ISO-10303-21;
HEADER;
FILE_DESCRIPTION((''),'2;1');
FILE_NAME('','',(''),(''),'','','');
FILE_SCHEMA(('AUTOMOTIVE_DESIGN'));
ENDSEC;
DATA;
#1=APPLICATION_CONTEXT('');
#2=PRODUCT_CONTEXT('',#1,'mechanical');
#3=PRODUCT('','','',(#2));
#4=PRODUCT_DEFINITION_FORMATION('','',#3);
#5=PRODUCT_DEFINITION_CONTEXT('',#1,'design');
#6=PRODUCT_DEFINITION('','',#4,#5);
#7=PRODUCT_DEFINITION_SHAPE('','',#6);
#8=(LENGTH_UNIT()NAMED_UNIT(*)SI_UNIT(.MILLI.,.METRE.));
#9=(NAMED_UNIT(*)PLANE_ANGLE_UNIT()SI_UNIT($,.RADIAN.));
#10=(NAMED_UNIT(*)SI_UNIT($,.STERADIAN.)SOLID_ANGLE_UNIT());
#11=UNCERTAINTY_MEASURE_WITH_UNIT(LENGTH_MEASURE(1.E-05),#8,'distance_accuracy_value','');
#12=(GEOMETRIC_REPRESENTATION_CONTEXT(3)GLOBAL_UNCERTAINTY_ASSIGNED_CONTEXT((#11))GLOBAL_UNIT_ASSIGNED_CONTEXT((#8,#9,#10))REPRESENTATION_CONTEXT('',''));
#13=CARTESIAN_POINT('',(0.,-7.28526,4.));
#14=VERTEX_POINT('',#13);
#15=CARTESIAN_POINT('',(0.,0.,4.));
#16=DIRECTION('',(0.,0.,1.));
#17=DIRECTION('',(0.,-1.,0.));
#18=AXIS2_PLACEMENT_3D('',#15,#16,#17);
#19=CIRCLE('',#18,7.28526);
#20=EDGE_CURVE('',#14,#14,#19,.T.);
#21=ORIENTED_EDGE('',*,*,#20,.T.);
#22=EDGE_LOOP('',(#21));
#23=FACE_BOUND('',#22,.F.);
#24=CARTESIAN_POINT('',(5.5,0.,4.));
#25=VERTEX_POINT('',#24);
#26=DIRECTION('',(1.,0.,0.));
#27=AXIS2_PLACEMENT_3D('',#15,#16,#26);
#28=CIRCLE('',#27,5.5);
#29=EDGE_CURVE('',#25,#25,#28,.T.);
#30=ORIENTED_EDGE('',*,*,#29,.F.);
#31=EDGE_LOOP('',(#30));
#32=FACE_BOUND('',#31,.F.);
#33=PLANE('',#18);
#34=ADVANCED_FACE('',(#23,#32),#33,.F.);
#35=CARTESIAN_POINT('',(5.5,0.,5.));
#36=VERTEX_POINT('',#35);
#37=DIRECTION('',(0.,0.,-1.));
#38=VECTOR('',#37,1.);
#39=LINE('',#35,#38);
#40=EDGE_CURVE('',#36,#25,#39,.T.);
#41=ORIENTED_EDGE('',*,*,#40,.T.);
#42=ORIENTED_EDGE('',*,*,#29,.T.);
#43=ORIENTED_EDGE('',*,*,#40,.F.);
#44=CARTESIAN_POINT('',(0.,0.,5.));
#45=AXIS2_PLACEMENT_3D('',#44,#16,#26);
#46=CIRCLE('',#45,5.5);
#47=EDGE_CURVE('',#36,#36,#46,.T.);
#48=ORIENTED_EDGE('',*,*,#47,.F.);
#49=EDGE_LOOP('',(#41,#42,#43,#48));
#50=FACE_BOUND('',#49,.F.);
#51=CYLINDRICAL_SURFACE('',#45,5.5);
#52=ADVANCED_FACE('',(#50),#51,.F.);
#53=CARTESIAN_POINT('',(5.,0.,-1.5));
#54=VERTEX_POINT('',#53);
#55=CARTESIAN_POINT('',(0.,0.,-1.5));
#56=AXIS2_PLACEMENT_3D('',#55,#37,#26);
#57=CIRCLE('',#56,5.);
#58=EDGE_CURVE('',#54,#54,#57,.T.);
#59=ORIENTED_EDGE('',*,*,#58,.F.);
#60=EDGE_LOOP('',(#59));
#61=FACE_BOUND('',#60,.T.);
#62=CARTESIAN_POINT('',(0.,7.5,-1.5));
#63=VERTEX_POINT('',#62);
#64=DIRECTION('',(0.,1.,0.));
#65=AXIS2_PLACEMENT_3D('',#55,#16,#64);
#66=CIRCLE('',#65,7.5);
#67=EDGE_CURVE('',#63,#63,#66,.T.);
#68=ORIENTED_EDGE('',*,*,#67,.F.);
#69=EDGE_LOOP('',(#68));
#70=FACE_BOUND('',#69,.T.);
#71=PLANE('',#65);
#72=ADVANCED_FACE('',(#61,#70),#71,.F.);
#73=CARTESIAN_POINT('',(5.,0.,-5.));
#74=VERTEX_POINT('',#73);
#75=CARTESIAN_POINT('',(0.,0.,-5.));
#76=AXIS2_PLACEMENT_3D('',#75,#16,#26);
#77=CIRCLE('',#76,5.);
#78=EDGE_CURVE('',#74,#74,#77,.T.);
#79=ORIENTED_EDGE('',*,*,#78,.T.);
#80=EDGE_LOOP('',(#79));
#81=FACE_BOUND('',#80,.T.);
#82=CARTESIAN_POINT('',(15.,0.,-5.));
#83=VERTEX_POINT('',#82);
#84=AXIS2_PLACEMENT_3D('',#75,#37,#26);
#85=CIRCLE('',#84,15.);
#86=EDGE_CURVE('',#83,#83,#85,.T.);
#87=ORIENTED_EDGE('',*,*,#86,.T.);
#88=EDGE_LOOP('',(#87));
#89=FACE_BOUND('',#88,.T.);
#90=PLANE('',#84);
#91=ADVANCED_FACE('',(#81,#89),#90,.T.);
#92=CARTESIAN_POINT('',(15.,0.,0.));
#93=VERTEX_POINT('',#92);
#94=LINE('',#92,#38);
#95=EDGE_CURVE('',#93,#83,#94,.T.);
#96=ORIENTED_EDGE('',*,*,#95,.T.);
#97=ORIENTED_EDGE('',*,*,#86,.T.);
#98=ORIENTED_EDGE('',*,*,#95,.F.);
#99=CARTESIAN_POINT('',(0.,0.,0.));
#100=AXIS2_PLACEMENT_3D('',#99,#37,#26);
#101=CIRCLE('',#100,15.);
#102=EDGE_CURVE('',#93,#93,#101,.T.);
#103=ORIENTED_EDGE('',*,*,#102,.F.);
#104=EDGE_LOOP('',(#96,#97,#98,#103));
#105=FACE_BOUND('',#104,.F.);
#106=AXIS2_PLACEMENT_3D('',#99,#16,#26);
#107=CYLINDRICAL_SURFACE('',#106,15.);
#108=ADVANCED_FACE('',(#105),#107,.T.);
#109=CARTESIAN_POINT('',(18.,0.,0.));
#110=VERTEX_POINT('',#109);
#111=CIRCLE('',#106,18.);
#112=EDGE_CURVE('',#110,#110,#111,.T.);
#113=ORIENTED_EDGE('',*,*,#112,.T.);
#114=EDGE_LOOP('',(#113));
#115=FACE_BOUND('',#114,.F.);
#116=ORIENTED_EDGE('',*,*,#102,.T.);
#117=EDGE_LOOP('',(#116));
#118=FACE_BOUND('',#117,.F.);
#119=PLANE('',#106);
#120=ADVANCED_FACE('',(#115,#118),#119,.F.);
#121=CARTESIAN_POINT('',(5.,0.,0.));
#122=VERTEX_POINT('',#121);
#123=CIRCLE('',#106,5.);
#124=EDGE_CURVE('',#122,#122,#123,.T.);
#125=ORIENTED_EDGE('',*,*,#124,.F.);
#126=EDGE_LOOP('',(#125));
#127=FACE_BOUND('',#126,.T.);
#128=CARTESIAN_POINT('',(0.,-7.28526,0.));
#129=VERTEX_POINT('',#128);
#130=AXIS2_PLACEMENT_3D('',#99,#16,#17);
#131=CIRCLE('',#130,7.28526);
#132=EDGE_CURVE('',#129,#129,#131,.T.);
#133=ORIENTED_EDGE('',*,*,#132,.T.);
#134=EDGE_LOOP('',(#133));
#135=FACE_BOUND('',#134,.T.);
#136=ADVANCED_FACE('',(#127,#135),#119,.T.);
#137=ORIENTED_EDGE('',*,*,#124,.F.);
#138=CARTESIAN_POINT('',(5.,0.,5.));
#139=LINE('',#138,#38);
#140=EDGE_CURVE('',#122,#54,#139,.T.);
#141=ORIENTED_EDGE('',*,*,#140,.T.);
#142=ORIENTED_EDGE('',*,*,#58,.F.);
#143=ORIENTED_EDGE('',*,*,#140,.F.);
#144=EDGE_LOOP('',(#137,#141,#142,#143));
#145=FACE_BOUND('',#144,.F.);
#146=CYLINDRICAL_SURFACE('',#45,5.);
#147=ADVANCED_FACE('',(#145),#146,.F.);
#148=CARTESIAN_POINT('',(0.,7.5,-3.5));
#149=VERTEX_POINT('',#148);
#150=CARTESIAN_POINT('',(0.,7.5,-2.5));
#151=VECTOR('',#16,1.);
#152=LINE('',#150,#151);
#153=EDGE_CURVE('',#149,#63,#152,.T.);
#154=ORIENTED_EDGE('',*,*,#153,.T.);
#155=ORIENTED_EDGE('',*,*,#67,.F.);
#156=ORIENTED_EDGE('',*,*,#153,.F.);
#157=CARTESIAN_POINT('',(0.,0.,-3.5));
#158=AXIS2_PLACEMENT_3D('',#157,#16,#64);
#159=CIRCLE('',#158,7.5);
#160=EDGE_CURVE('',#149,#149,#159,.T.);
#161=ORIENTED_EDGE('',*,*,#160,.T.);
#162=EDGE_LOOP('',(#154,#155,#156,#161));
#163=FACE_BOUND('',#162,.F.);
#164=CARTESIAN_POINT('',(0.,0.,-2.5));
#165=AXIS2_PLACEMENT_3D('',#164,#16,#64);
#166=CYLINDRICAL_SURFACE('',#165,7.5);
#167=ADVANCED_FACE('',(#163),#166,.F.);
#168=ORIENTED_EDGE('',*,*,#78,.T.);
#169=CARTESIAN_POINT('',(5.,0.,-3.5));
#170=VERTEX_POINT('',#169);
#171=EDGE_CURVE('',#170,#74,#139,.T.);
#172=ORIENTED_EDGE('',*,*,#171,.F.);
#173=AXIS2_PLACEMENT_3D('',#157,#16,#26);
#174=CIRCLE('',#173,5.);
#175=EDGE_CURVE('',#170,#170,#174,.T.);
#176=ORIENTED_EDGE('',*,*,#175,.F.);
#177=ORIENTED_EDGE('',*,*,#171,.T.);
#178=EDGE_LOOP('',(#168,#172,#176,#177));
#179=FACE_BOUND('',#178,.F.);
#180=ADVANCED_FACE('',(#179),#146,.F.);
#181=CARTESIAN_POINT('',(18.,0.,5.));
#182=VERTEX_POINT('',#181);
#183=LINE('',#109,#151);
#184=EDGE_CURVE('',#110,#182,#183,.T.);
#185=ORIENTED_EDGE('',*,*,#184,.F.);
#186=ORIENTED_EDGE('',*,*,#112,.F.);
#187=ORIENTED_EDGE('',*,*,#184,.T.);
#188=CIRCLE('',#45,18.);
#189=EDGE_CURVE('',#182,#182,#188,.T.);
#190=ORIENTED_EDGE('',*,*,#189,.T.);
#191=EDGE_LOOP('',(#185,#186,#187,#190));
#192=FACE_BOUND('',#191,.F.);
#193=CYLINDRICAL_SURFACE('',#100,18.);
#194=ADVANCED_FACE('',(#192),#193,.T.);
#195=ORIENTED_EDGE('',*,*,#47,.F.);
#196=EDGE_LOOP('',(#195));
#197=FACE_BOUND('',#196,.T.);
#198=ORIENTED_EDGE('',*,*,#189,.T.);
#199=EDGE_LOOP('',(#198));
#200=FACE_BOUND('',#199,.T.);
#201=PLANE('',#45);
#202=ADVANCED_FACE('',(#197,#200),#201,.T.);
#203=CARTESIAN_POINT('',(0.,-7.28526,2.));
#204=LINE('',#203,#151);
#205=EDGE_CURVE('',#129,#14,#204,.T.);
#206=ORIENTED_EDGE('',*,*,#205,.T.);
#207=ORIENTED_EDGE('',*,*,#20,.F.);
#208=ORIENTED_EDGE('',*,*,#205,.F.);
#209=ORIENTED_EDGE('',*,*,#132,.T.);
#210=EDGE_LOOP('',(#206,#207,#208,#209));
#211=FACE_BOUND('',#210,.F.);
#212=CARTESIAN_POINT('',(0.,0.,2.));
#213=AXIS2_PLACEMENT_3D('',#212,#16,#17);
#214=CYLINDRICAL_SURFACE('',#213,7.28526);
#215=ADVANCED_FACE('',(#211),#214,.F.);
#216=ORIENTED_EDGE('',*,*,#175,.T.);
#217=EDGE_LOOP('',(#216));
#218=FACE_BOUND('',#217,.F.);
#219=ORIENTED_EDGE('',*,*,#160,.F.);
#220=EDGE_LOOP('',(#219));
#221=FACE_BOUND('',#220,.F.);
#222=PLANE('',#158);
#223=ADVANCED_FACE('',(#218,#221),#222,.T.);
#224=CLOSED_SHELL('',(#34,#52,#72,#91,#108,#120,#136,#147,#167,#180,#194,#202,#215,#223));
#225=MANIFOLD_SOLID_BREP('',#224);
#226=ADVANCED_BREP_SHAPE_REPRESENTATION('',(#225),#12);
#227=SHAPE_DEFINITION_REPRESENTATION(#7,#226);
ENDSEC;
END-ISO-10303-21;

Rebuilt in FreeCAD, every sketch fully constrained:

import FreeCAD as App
import Part
import Sketcher

V = App.Vector


def add_polygon(sketch, points):
    """Adds a closed chain of lines whose ends are joined by coincident constraints."""
    first, n = sketch.GeometryCount, len(points)
    for a, b in zip(points, points[1:] + points[:1]):
        sketch.addGeometry(Part.LineSegment(App.Vector(*a, 0), App.Vector(*b, 0)), False)
    for i in range(n):
        sketch.addConstraint(Sketcher.Constraint("Coincident", first + i, 2, first + (i + 1) % n, 1))

doc = App.newDocument("Part")
body = doc.addObject("PartDesign::Body", "Body")

sketch1 = body.newObject("Sketcher::SketchObject", "Sketch")
sketch1.AttachmentSupport = (doc.getObject("XY_Plane"), [""])
sketch1.MapMode = "FlatFace"
sketch1.addGeometry(Part.Circle(V(0, 0, 0), V(0, 0, 1), 18), False)
sketch1.addConstraint([
    Sketcher.Constraint("Coincident", 0, 3, -1, 1),
    Sketcher.Constraint("Diameter", 0, 36.0),
])
pad1 = body.newObject("PartDesign::Pad", "Pad")
pad1.Profile = sketch1
pad1.Length = 5

sketch2 = body.newObject("Sketcher::SketchObject", "Sketch001")
sketch2.AttachmentSupport = (doc.getObject("XY_Plane"), [""])
sketch2.MapMode = "FlatFace"
sketch2.addGeometry(Part.Circle(V(0, 0, 0), V(0, 0, 1), 15), False)
sketch2.addConstraint([
    Sketcher.Constraint("Coincident", 0, 3, -1, 1),
    Sketcher.Constraint("Diameter", 0, 30.0),
])
pad2 = body.newObject("PartDesign::Pad", "Pad001")
pad2.Profile = sketch2
pad2.Length = 5
pad2.Reversed = True

sketch3 = body.newObject("Sketcher::SketchObject", "Sketch002")
sketch3.AttachmentSupport = (doc.getObject("XY_Plane"), [""])
sketch3.MapMode = "FlatFace"
sketch3.AttachmentOffset = App.Placement(V(0, 0, 5), App.Rotation())
sketch3.addGeometry(Part.Circle(V(0, 0, 0), V(0, 0, 1), 5), False)
sketch3.addConstraint([
    Sketcher.Constraint("Coincident", 0, 3, -1, 1),
    Sketcher.Constraint("Diameter", 0, 10.0),
])
pocket1 = body.newObject("PartDesign::Pocket", "Pocket")
pocket1.Profile = sketch3
pocket1.Length = 10

sketch4 = body.newObject("Sketcher::SketchObject", "Sketch003")
sketch4.AttachmentSupport = (doc.getObject("XY_Plane"), [""])
sketch4.MapMode = "FlatFace"
sketch4.AttachmentOffset = App.Placement(V(0, 0, 5), App.Rotation())
sketch4.addGeometry(Part.Circle(V(0, 0, 0), V(0, 0, 1), 6), False)
sketch4.addConstraint([
    Sketcher.Constraint("Coincident", 0, 3, -1, 1),
    Sketcher.Constraint("Diameter", 0, 11.0),
])
pocket2 = body.newObject("PartDesign::Pocket", "Pocket001")
pocket2.Profile = sketch4
pocket2.Length = 5

sketch5 = body.newObject("Sketcher::SketchObject", "Sketch004")
sketch5.AttachmentSupport = (doc.getObject("YZ_Plane"), [""])
sketch5.MapMode = "FlatFace"
add_polygon(sketch5, [(-7.3, 4), (-7.3, 0), (-5.5, 0), (-5.5, 4)])
sketch5.addConstraint([
    Sketcher.Constraint("Vertical", 0),
    Sketcher.Constraint("Horizontal", 1),
    Sketcher.Constraint("Vertical", 2),
    Sketcher.Constraint("Horizontal", 3),
    Sketcher.Constraint("PointOnObject", 0, 2, -1),
    Sketcher.Constraint("DistanceY", 0, 2, 0, 1, 4.0),
    Sketcher.Constraint("DistanceX", 1, 2, -1, 1, 5.5),
    Sketcher.Constraint("DistanceX", 1, 1, 1, 2, 1.785261),
])
groove = body.newObject("PartDesign::Groove", "Groove")
groove.Profile = sketch5
groove.ReferenceAxis = (sketch5, ["V_Axis"])
groove.Angle = 360

sketch6 = body.newObject("Sketcher::SketchObject", "Sketch005")
sketch6.AttachmentSupport = (doc.getObject("YZ_Plane"), [""])
sketch6.MapMode = "FlatFace"
add_polygon(sketch6, [(5, -1.5), (5, -3.5), (7.5, -3.5), (7.5, -1.5)])
sketch6.addConstraint([
    Sketcher.Constraint("Vertical", 0),
    Sketcher.Constraint("Horizontal", 1),
    Sketcher.Constraint("Vertical", 2),
    Sketcher.Constraint("Horizontal", 3),
    Sketcher.Constraint("DistanceY", 0, 2, 0, 1, 2.0),
    Sketcher.Constraint("DistanceX", 1, 1, 1, 2, 2.5),
    Sketcher.Constraint("DistanceX", -1, 1, 0, 2, 5.0),
    Sketcher.Constraint("DistanceY", 0, 2, -1, 1, 3.5),
])
groove2 = body.newObject("PartDesign::Groove", "Groove001")
groove2.Profile = sketch6
groove2.ReferenceAxis = (sketch6, ["V_Axis"])
groove2.Angle = 360

doc.recompute()
